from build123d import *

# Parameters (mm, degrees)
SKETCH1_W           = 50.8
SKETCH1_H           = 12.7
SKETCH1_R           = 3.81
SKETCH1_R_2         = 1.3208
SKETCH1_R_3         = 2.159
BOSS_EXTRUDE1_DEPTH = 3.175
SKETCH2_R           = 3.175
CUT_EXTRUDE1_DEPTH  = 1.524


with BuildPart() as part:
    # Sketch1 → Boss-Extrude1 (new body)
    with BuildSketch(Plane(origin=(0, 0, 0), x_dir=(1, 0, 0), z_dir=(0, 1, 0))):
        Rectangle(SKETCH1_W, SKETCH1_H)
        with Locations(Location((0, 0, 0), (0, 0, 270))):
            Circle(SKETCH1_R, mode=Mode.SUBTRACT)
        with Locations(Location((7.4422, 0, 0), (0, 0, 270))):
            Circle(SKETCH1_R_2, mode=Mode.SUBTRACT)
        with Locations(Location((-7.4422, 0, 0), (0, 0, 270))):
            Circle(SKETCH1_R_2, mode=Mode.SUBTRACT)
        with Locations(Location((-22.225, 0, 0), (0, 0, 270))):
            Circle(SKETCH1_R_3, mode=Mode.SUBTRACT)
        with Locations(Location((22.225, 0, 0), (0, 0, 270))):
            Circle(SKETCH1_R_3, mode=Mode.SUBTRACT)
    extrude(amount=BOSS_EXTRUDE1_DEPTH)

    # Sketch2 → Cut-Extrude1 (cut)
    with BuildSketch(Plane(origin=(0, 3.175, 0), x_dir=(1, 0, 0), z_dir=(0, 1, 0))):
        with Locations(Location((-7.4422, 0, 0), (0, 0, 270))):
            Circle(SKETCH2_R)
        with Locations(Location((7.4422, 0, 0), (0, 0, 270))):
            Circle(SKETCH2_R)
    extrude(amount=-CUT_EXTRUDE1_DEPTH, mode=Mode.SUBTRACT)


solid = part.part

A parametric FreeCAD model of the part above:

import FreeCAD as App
import Part
import Sketcher
from FreeCAD import Vector
Q = App.Units.Quantity

doc = App.newDocument("Part")
params = doc.addObject("Spreadsheet::Sheet", "Params")
for row, (alias, value) in enumerate([
    ("sketch1_diameter", "0.3 in"),
    ("sketch1_diameter2", "0.17 in"),
    ("sketch1_width", "2 in"),
    ("sketch1_diameter3", "0.104 in"),
    ("sketch1_height", "0.5 in"),
    ("pad1_length", "0.125 in"),
    ("sketch2_diameter", "0.25 in"),
    ("pocket1_length", "0.06 in"),
], start=1):
    params.set(f"A{row}", alias)
    params.set(f"B{row}", "=" + value)
    params.setAlias(f"B{row}", alias)

body = doc.addObject("PartDesign::Body", "Body")

sketch1 = doc.addObject("Sketcher::SketchObject", "Sketch")
body.addObject(sketch1)
sketch1.AttachmentSupport = (doc.XZ_Plane, [""])
sketch1.MapMode = "FlatFace"
sketch1.addGeometry([
    Part.LineSegment(Vector(-25.4, -6.3, 0), Vector(-25.4, 6.3, 0)),
    Part.LineSegment(Vector(-25.4, 6.3, 0), Vector(25.4, 6.3, 0)),
    Part.LineSegment(Vector(25.4, 6.3, 0), Vector(25.4, -6.3, 0)),
    Part.LineSegment(Vector(25.4, -6.3, 0), Vector(-25.4, -6.3, 0)),
    Part.Circle(Vector(-22.2, 0, 0), Vector(0, 0, 1), 2.2),
    Part.Circle(Vector(-7.4, 0, 0), Vector(0, 0, 1), 1.3),
    Part.Circle(Vector(0, 0, 0), Vector(0, 0, 1), 3.8),
    Part.Circle(Vector(7.4, 0, 0), Vector(0, 0, 1), 1.3),
    Part.Circle(Vector(22.2, 0, 0), Vector(0, 0, 1), 2.2),
], False)
sketch1.addConstraint([
    Sketcher.Constraint("Coincident", 0, 2, 1, 1),
    Sketcher.Constraint("Coincident", 1, 2, 2, 1),
    Sketcher.Constraint("Coincident", 2, 2, 3, 1),
    Sketcher.Constraint("Coincident", 3, 2, 0, 1),
    Sketcher.Constraint("Vertical", 0),
    Sketcher.Constraint("Horizontal", 1),
    Sketcher.Constraint("Vertical", 2),
    Sketcher.Constraint("Horizontal", 3),
    Sketcher.Constraint("Coincident", 6, 3, -1, 1),
    Sketcher.Constraint("Equal", 5, 7),
    Sketcher.Constraint("Equal", 4, 8),
    Sketcher.Constraint("Symmetric", 5, 3, 7, 3, -1, 1),
    Sketcher.Constraint("Symmetric", 4, 3, 8, 3, -1, 1),
    Sketcher.Constraint("Symmetric", 0, 2, 2, 2, -1, 1),
    Sketcher.Constraint("PointOnObject", 4, 3, -1),
    Sketcher.Constraint("PointOnObject", 5, 3, -1),
    Sketcher.Constraint("Diameter", 6, Q("0.3 in")),
    Sketcher.Constraint("Diameter", 4, Q("0.17 in")),
    Sketcher.Constraint("DistanceX", 1, 1, 1, 2, Q("2 in")),
    Sketcher.Constraint("Diameter", 5, Q("0.104 in")),
    Sketcher.Constraint("DistanceY", 0, 1, 0, 2, Q("0.5 in")),
    Sketcher.Constraint("DistanceX", 4, 3, 8, 3, Q("1.75 in")),
    Sketcher.Constraint("DistanceX", 5, 3, -1, 1, Q("0.293 in")),
])
sketch1.setExpression("Constraints[16]", "Params.sketch1_diameter")
sketch1.setExpression("Constraints[17]", "Params.sketch1_diameter2")
sketch1.setExpression("Constraints[18]", "Params.sketch1_width")
sketch1.setExpression("Constraints[19]", "Params.sketch1_diameter3")
sketch1.setExpression("Constraints[20]", "Params.sketch1_height")
pad1 = doc.addObject("PartDesign::Pad", "Pad")
body.addObject(pad1)
pad1.Profile = sketch1
pad1.setExpression("Length", "Params.pad1_length")
pad1.Reversed = True

sketch2 = doc.addObject("Sketcher::SketchObject", "Sketch001")
body.addObject(sketch2)
sketch2.AttachmentSupport = (doc.XZ_Plane, [""])
sketch2.MapMode = "FlatFace"
sketch2.AttachmentOffset = App.Placement(Vector(0, 0, -0.125 * 25.4), App.Rotation())
sketch2.addGeometry([
    Part.Circle(Vector(-7.4, 0, 0), Vector(0, 0, 1), 3.2),
    Part.Circle(Vector(7.4, 0, 0), Vector(0, 0, 1), 3.2),
], False)
sketch2.addConstraint([
    Sketcher.Constraint("Equal", 0, 1),
    Sketcher.Constraint("Symmetric", 0, 3, 1, 3, -1, 1),
    Sketcher.Constraint("PointOnObject", 0, 3, -1),
    Sketcher.Constraint("Diameter", 0, Q("0.25 in")),
    Sketcher.Constraint("DistanceX", 0, 3, -1, 1, Q("0.293 in")),
])
sketch2.setExpression("Constraints[3]", "Params.sketch2_diameter")
pocket1 = doc.addObject("PartDesign::Pocket", "Pocket")
body.addObject(pocket1)
pocket1.Profile = sketch2
pocket1.setExpression("Length", "Params.pocket1_length")
pocket1.Reversed = True

doc.recompute()
